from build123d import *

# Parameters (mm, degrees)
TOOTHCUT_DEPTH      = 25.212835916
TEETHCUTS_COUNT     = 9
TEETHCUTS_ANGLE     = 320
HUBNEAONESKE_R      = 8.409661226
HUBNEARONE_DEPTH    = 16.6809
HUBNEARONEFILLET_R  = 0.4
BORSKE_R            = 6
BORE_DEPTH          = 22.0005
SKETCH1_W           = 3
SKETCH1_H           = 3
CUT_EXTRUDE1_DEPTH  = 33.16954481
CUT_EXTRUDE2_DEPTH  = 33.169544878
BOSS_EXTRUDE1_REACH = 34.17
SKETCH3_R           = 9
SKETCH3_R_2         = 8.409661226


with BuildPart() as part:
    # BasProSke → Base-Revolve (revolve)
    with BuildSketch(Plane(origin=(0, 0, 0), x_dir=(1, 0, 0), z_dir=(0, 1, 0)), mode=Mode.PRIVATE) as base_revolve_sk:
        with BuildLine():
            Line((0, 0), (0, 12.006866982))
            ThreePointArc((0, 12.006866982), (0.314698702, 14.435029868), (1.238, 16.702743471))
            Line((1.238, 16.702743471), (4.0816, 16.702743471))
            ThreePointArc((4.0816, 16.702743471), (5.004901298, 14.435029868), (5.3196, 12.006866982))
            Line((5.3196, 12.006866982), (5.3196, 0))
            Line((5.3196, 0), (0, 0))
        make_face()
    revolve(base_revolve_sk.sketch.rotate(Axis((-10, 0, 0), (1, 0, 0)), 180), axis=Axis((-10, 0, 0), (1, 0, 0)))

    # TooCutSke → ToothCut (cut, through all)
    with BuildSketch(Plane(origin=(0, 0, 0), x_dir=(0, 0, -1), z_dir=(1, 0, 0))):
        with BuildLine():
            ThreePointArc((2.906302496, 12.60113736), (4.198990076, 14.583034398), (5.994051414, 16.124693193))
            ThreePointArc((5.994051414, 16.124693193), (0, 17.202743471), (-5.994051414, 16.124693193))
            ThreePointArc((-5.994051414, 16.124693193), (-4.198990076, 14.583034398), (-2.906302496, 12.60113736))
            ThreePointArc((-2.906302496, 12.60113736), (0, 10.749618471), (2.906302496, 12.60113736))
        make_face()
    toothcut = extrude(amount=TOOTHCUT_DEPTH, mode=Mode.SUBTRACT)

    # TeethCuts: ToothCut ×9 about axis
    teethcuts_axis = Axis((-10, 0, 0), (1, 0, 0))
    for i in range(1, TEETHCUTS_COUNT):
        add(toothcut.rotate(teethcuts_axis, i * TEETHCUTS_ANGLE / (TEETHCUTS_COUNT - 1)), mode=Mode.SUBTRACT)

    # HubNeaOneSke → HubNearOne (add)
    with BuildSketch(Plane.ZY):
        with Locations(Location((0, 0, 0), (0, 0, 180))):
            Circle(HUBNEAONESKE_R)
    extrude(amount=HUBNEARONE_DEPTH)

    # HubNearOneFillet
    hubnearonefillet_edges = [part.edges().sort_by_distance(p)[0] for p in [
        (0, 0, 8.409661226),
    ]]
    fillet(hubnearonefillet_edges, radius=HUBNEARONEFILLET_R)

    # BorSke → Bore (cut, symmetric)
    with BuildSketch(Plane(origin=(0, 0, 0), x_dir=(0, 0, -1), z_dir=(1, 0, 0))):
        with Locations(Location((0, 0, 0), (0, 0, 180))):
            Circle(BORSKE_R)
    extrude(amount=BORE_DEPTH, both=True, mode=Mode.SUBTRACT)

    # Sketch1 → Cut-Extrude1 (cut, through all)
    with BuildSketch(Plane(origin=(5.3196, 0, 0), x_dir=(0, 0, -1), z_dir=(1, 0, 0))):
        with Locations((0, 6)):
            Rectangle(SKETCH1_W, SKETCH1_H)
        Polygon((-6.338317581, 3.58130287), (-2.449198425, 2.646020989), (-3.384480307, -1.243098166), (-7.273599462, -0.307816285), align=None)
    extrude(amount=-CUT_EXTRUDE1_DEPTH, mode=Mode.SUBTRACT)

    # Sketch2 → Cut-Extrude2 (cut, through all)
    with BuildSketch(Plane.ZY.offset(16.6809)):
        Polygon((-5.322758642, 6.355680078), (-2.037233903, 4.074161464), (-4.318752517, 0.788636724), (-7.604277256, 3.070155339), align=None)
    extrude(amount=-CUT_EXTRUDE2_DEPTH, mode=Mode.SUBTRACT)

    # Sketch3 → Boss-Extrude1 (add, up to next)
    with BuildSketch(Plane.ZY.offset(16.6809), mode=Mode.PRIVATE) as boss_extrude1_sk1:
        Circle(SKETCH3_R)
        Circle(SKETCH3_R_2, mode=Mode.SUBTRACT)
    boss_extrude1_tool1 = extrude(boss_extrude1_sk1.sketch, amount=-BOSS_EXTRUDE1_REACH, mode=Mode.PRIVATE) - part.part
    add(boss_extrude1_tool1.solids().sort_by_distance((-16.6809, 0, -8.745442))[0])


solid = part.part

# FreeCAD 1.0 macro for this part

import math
import FreeCAD as App
import Part
import Sketcher
from FreeCAD import Vector


def edges_at(feature, points):
    """Names of the edges that pass closest to the given points."""
    edges = feature.Shape.Edges
    near = lambda p: min(range(len(edges)), key=lambda i: edges[i].distToShape(Part.Vertex(*p))[0])
    return sorted({f"Edge{near(p) + 1}" for p in points})

doc = App.newDocument("Part")
body = doc.addObject("PartDesign::Body", "Body")

sketch1 = body.newObject("Sketcher::SketchObject", "Sketch")
sketch1.AttachmentSupport = (doc.getObject("XZ_Plane"), [""])
sketch1.MapMode = "FlatFace"
sketch1.addGeometry([
    Part.LineSegment(Vector(0, -12.006867, 0), Vector(0, 0, 0)),
    Part.LineSegment(Vector(0, 0, 0), Vector(5.3196, 0, 0)),
    Part.LineSegment(Vector(5.3196, 0, 0), Vector(5.3196, -12.006867, 0)),
    Part.ArcOfCircle(Part.Circle(Vector(-4.2054, -12.006867, 0), Vector(0, 0, 1), 9.525), math.radians(-29.53831), math.radians(0)),
    Part.LineSegment(Vector(4.0816, -16.702743, 0), Vector(1.238, -16.702743, 0)),
    Part.ArcOfCircle(Part.Circle(Vector(9.525, -12.006867, 0), Vector(0, 0, 1), 9.525), math.radians(180), math.radians(209.53831)),
], False)
sketch1.addConstraint([
    Sketcher.Constraint("Coincident", 0, 2, 1, 1),
    Sketcher.Constraint("Coincident", 1, 2, 2, 1),
    Sketcher.Constraint("Tangent", 2, 2, 3, 2),
    Sketcher.Constraint("Coincident", 3, 1, 4, 1),
    Sketcher.Constraint("Coincident", 4, 2, 5, 2),
    Sketcher.Constraint("Tangent", 5, 1, 0, 1),
    Sketcher.Constraint("Vertical", 0),
    Sketcher.Constraint("Horizontal", 1),
    Sketcher.Constraint("Vertical", 2),
    Sketcher.Constraint("Horizontal", 4),
    Sketcher.Constraint("Coincident", 0, 2, -1, 1),
    Sketcher.Constraint("Equal", 3, 5),
    Sketcher.Constraint("Horizontal", 3, 3, 5, 3),
    Sketcher.Constraint("Radius", 3, 9.525),
    Sketcher.Constraint("DistanceX", 1, 1, 1, 2, 5.3196),
    Sketcher.Constraint("DistanceX", 4, 2, 4, 1, 2.8436),
    Sketcher.Constraint("DistanceY", 0, 1, 0, 2, 12.006867),
])
revolution = body.newObject("PartDesign::Revolution", "Revolution")
revolution.Profile = sketch1
revolution.ReferenceAxis = (sketch1, ["H_Axis"])
revolution.Angle = 360

sketch2 = body.newObject("Sketcher::SketchObject", "Sketch001")
sketch2.AttachmentSupport = (doc.getObject("YZ_Plane"), [""])
sketch2.MapMode = "FlatFace"
sketch2.addGeometry([
    Part.ArcOfCircle(Part.Circle(Vector(9.058751, -10.502974, 0), Vector(0, 0, 1), 8.382), math.radians(32.542785), math.radians(65)),
    Part.ArcOfCircle(Part.Circle(Vector(0, 0, 0), Vector(0, 0, 1), 17.202743), math.radians(-20.391671), math.radians(20.391671)),
    Part.ArcOfCircle(Part.Circle(Vector(9.058751, 10.502974, 0), Vector(0, 0, 1), 8.382), math.radians(-65), math.radians(-32.542785)),
    Part.ArcOfCircle(Part.Circle(Vector(13.956368, 0, 0), Vector(0, 0, 1), 3.20675), math.radians(115), math.radians(245)),
], False)
sketch2.addConstraint([
    Sketcher.Constraint("Coincident", 0, 1, 1, 1),
    Sketcher.Constraint("Coincident", 1, 2, 2, 2),
    Sketcher.Constraint("Tangent", 2, 1, 3, 1),
    Sketcher.Constraint("Tangent", 3, 2, 0, 2),
    Sketcher.Constraint("Coincident", 1, 3, -1, 1),
    Sketcher.Constraint("Equal", 0, 2),
    Sketcher.Constraint("Symmetric", 0, 3, 2, 3, -1),
    Sketcher.Constraint("Radius", 0, 8.382),
    Sketcher.Constraint("Radius", 3, 3.20675),
    Sketcher.Constraint("Radius", 1, 17.202743),
    Sketcher.Constraint("DistanceX", -1, 1, 0, 3, 9.058751),
    Sketcher.Constraint("DistanceX", -1, 1, 3, 3, 13.956368),
])
pocket1 = body.newObject("PartDesign::Pocket", "Pocket")
pocket1.Profile = sketch2
pocket1.Type = "ThroughAll"
pocket1.Reversed = True
doc.recompute()

polarpattern = body.newObject("PartDesign::PolarPattern", "PolarPattern")
polarpattern.Originals = [pocket1]
polarpattern.Axis = (doc.getObject("X_Axis"), [""])
polarpattern.Angle = 360
polarpattern.Occurrences = 9
body.Tip = polarpattern

sketch3 = body.newObject("Sketcher::SketchObject", "Sketch002")
sketch3.AttachmentSupport = (doc.getObject("YZ_Plane"), [""])
sketch3.MapMode = "FlatFace"
sketch3.addGeometry(Part.Circle(Vector(0, 0, 0), Vector(0, 0, 1), 8.409661), False)
sketch3.addConstraint([
    Sketcher.Constraint("Coincident", 0, 3, -1, 1),
    Sketcher.Constraint("Diameter", 0, 16.819322),
])
pad1 = body.newObject("PartDesign::Pad", "Pad")
pad1.Profile = sketch3
pad1.Length = 16.6809
pad1.Reversed = True
doc.recompute()

fillet = body.newObject("PartDesign::Fillet", "Fillet")
fillet.Base = (pad1, edges_at(pad1, [(0, 0, 8.41)]))
fillet.Radius = 0.4

sketch4 = body.newObject("Sketcher::SketchObject", "Sketch003")
sketch4.AttachmentSupport = (doc.getObject("YZ_Plane"), [""])
sketch4.MapMode = "FlatFace"
sketch4.addGeometry(Part.Circle(Vector(0, 0, 0), Vector(0, 0, 1), 6), False)
sketch4.addConstraint([
    Sketcher.Constraint("Coincident", 0, 3, -1, 1),
    Sketcher.Constraint("Diameter", 0, 12.0),
])
pocket2 = body.newObject("PartDesign::Pocket", "Pocket001")
pocket2.Profile = sketch4
pocket2.Length = 44.001
pocket2.Midplane = True

sketch5 = body.newObject("Sketcher::SketchObject", "Sketch004")
sketch5.AttachmentSupport = (doc.getObject("YZ_Plane"), [""])
sketch5.MapMode = "FlatFace"
sketch5.AttachmentOffset = App.Placement(Vector(0, 0, 5.3196), App.Rotation())
sketch5.addGeometry([
    Part.LineSegment(Vector(7.5, 1.5, 0), Vector(4.5, 1.5, 0)),
    Part.LineSegment(Vector(4.5, 1.5, 0), Vector(4.5, -1.5, 0)),
    Part.LineSegment(Vector(4.5, -1.5, 0), Vector(7.5, -1.5, 0)),
    Part.LineSegment(Vector(7.5, -1.5, 0), Vector(7.5, 1.5, 0)),
    Part.LineSegment(Vector(2.646021, 2.449198, 0), Vector(3.581303, 6.338318, 0)),
    Part.LineSegment(Vector(3.581303, 6.338318, 0), Vector(-0.307816, 7.273599, 0)),
    Part.LineSegment(Vector(-0.307816, 7.273599, 0), Vector(-1.243098, 3.38448, 0)),
    Part.LineSegment(Vector(-1.243098, 3.38448, 0), Vector(2.646021, 2.449198, 0)),
], False)
sketch5.addConstraint([
    Sketcher.Constraint("Coincident", 0, 2, 1, 1),
    Sketcher.Constraint("Coincident", 1, 2, 2, 1),
    Sketcher.Constraint("Coincident", 2, 2, 3, 1),
    Sketcher.Constraint("Coincident", 3, 2, 0, 1),
    Sketcher.Constraint("Coincident", 4, 2, 5, 1),
    Sketcher.Constraint("Coincident", 5, 2, 6, 1),
    Sketcher.Constraint("Coincident", 6, 2, 7, 1),
    Sketcher.Constraint("Coincident", 7, 2, 4, 1),
    Sketcher.Constraint("Horizontal", 0),
    Sketcher.Constraint("Vertical", 1),
    Sketcher.Constraint("Horizontal", 2),
    Sketcher.Constraint("Vertical", 3),
    Sketcher.Constraint("Perpendicular", 4, 5),
    Sketcher.Constraint("Perpendicular", 5, 6),
    Sketcher.Constraint("Perpendicular", 6, 7),
    Sketcher.Constraint("Equal", 2, 1),
    Sketcher.Constraint("Equal", 4, 5),
    Sketcher.Constraint("DistanceX", 0, 2, 0, 1, 3.0),
    Sketcher.Constraint("Distance", 4, 4.0),
    Sketcher.Constraint("DistanceX", -1, 1, 0, 2, 4.5),
    Sketcher.Constraint("DistanceY", -1, 1, 0, 2, 1.5),
    Sketcher.Constraint("DistanceY", -1, 1, 5, 2, 7.273599),
    Sketcher.Constraint("DistanceX", 6, 2, -1, 1, 1.243098),
    Sketcher.Constraint("DistanceY", -1, 1, 7, 2, 2.449198),
])
pocket3 = body.newObject("PartDesign::Pocket", "Pocket002")
pocket3.Profile = sketch5
pocket3.Type = "ThroughAll"

sketch6 = body.newObject("Sketcher::SketchObject", "Sketch005")
sketch6.AttachmentSupport = (doc.getObject("YZ_Plane"), [""])
sketch6.MapMode = "FlatFace"
sketch6.AttachmentOffset = App.Placement(Vector(0, 0, -16.6809), App.Rotation())
sketch6.addGeometry([
    Part.LineSegment(Vector(4.074161, -2.037234, 0), Vector(6.35568, -5.322759, 0)),
    Part.LineSegment(Vector(6.35568, -5.322759, 0), Vector(3.070155, -7.604277, 0)),
    Part.LineSegment(Vector(3.070155, -7.604277, 0), Vector(0.788637, -4.318753, 0)),
    Part.LineSegment(Vector(0.788637, -4.318753, 0), Vector(4.074161, -2.037234, 0)),
], False)
sketch6.addConstraint([
    Sketcher.Constraint("Coincident", 0, 2, 1, 1),
    Sketcher.Constraint("Coincident", 1, 2, 2, 1),
    Sketcher.Constraint("Coincident", 2, 2, 3, 1),
    Sketcher.Constraint("Coincident", 3, 2, 0, 1),
    Sketcher.Constraint("Perpendicular", 0, 1),
    Sketcher.Constraint("Perpendicular", 1, 2),
    Sketcher.Constraint("Perpendicular", 2, 3),
    Sketcher.Constraint("Equal", 0, 1),
    Sketcher.Constraint("Distance", 0, 4.0),
    Sketcher.Constraint("DistanceX", -1, 1, 0, 2, 6.35568),
    Sketcher.Constraint("DistanceY", 0, 2, -1, 1, 5.322759),
    Sketcher.Constraint("DistanceX", -1, 1, 3, 2, 4.074161),
])
pocket4 = body.newObject("PartDesign::Pocket", "Pocket003")
pocket4.Profile = sketch6
pocket4.Type = "ThroughAll"
pocket4.Reversed = True

sketch7 = body.newObject("Sketcher::SketchObject", "Sketch006")
sketch7.AttachmentSupport = (doc.getObject("YZ_Plane"), [""])
sketch7.MapMode = "FlatFace"
sketch7.AttachmentOffset = App.Placement(Vector(0, 0, -16.6809), App.Rotation())
sketch7.addGeometry([
    Part.Circle(Vector(0, 0, 0), Vector(0, 0, 1), 9),
    Part.Circle(Vector(0, 0, 0), Vector(0, 0, 1), 8.409661),
], False)
sketch7.addConstraint([
    Sketcher.Constraint("Coincident", 0, 3, -1, 1),
    Sketcher.Constraint("Coincident", 1, 3, -1, 1),
    Sketcher.Constraint("Diameter", 0, 18.0),
    Sketcher.Constraint("Diameter", 1, 16.819322),
])
pad2 = body.newObject("PartDesign::Pad", "Pad001")
pad2.Profile = sketch7
pad2.Length = 16.6809

doc.recompute()
